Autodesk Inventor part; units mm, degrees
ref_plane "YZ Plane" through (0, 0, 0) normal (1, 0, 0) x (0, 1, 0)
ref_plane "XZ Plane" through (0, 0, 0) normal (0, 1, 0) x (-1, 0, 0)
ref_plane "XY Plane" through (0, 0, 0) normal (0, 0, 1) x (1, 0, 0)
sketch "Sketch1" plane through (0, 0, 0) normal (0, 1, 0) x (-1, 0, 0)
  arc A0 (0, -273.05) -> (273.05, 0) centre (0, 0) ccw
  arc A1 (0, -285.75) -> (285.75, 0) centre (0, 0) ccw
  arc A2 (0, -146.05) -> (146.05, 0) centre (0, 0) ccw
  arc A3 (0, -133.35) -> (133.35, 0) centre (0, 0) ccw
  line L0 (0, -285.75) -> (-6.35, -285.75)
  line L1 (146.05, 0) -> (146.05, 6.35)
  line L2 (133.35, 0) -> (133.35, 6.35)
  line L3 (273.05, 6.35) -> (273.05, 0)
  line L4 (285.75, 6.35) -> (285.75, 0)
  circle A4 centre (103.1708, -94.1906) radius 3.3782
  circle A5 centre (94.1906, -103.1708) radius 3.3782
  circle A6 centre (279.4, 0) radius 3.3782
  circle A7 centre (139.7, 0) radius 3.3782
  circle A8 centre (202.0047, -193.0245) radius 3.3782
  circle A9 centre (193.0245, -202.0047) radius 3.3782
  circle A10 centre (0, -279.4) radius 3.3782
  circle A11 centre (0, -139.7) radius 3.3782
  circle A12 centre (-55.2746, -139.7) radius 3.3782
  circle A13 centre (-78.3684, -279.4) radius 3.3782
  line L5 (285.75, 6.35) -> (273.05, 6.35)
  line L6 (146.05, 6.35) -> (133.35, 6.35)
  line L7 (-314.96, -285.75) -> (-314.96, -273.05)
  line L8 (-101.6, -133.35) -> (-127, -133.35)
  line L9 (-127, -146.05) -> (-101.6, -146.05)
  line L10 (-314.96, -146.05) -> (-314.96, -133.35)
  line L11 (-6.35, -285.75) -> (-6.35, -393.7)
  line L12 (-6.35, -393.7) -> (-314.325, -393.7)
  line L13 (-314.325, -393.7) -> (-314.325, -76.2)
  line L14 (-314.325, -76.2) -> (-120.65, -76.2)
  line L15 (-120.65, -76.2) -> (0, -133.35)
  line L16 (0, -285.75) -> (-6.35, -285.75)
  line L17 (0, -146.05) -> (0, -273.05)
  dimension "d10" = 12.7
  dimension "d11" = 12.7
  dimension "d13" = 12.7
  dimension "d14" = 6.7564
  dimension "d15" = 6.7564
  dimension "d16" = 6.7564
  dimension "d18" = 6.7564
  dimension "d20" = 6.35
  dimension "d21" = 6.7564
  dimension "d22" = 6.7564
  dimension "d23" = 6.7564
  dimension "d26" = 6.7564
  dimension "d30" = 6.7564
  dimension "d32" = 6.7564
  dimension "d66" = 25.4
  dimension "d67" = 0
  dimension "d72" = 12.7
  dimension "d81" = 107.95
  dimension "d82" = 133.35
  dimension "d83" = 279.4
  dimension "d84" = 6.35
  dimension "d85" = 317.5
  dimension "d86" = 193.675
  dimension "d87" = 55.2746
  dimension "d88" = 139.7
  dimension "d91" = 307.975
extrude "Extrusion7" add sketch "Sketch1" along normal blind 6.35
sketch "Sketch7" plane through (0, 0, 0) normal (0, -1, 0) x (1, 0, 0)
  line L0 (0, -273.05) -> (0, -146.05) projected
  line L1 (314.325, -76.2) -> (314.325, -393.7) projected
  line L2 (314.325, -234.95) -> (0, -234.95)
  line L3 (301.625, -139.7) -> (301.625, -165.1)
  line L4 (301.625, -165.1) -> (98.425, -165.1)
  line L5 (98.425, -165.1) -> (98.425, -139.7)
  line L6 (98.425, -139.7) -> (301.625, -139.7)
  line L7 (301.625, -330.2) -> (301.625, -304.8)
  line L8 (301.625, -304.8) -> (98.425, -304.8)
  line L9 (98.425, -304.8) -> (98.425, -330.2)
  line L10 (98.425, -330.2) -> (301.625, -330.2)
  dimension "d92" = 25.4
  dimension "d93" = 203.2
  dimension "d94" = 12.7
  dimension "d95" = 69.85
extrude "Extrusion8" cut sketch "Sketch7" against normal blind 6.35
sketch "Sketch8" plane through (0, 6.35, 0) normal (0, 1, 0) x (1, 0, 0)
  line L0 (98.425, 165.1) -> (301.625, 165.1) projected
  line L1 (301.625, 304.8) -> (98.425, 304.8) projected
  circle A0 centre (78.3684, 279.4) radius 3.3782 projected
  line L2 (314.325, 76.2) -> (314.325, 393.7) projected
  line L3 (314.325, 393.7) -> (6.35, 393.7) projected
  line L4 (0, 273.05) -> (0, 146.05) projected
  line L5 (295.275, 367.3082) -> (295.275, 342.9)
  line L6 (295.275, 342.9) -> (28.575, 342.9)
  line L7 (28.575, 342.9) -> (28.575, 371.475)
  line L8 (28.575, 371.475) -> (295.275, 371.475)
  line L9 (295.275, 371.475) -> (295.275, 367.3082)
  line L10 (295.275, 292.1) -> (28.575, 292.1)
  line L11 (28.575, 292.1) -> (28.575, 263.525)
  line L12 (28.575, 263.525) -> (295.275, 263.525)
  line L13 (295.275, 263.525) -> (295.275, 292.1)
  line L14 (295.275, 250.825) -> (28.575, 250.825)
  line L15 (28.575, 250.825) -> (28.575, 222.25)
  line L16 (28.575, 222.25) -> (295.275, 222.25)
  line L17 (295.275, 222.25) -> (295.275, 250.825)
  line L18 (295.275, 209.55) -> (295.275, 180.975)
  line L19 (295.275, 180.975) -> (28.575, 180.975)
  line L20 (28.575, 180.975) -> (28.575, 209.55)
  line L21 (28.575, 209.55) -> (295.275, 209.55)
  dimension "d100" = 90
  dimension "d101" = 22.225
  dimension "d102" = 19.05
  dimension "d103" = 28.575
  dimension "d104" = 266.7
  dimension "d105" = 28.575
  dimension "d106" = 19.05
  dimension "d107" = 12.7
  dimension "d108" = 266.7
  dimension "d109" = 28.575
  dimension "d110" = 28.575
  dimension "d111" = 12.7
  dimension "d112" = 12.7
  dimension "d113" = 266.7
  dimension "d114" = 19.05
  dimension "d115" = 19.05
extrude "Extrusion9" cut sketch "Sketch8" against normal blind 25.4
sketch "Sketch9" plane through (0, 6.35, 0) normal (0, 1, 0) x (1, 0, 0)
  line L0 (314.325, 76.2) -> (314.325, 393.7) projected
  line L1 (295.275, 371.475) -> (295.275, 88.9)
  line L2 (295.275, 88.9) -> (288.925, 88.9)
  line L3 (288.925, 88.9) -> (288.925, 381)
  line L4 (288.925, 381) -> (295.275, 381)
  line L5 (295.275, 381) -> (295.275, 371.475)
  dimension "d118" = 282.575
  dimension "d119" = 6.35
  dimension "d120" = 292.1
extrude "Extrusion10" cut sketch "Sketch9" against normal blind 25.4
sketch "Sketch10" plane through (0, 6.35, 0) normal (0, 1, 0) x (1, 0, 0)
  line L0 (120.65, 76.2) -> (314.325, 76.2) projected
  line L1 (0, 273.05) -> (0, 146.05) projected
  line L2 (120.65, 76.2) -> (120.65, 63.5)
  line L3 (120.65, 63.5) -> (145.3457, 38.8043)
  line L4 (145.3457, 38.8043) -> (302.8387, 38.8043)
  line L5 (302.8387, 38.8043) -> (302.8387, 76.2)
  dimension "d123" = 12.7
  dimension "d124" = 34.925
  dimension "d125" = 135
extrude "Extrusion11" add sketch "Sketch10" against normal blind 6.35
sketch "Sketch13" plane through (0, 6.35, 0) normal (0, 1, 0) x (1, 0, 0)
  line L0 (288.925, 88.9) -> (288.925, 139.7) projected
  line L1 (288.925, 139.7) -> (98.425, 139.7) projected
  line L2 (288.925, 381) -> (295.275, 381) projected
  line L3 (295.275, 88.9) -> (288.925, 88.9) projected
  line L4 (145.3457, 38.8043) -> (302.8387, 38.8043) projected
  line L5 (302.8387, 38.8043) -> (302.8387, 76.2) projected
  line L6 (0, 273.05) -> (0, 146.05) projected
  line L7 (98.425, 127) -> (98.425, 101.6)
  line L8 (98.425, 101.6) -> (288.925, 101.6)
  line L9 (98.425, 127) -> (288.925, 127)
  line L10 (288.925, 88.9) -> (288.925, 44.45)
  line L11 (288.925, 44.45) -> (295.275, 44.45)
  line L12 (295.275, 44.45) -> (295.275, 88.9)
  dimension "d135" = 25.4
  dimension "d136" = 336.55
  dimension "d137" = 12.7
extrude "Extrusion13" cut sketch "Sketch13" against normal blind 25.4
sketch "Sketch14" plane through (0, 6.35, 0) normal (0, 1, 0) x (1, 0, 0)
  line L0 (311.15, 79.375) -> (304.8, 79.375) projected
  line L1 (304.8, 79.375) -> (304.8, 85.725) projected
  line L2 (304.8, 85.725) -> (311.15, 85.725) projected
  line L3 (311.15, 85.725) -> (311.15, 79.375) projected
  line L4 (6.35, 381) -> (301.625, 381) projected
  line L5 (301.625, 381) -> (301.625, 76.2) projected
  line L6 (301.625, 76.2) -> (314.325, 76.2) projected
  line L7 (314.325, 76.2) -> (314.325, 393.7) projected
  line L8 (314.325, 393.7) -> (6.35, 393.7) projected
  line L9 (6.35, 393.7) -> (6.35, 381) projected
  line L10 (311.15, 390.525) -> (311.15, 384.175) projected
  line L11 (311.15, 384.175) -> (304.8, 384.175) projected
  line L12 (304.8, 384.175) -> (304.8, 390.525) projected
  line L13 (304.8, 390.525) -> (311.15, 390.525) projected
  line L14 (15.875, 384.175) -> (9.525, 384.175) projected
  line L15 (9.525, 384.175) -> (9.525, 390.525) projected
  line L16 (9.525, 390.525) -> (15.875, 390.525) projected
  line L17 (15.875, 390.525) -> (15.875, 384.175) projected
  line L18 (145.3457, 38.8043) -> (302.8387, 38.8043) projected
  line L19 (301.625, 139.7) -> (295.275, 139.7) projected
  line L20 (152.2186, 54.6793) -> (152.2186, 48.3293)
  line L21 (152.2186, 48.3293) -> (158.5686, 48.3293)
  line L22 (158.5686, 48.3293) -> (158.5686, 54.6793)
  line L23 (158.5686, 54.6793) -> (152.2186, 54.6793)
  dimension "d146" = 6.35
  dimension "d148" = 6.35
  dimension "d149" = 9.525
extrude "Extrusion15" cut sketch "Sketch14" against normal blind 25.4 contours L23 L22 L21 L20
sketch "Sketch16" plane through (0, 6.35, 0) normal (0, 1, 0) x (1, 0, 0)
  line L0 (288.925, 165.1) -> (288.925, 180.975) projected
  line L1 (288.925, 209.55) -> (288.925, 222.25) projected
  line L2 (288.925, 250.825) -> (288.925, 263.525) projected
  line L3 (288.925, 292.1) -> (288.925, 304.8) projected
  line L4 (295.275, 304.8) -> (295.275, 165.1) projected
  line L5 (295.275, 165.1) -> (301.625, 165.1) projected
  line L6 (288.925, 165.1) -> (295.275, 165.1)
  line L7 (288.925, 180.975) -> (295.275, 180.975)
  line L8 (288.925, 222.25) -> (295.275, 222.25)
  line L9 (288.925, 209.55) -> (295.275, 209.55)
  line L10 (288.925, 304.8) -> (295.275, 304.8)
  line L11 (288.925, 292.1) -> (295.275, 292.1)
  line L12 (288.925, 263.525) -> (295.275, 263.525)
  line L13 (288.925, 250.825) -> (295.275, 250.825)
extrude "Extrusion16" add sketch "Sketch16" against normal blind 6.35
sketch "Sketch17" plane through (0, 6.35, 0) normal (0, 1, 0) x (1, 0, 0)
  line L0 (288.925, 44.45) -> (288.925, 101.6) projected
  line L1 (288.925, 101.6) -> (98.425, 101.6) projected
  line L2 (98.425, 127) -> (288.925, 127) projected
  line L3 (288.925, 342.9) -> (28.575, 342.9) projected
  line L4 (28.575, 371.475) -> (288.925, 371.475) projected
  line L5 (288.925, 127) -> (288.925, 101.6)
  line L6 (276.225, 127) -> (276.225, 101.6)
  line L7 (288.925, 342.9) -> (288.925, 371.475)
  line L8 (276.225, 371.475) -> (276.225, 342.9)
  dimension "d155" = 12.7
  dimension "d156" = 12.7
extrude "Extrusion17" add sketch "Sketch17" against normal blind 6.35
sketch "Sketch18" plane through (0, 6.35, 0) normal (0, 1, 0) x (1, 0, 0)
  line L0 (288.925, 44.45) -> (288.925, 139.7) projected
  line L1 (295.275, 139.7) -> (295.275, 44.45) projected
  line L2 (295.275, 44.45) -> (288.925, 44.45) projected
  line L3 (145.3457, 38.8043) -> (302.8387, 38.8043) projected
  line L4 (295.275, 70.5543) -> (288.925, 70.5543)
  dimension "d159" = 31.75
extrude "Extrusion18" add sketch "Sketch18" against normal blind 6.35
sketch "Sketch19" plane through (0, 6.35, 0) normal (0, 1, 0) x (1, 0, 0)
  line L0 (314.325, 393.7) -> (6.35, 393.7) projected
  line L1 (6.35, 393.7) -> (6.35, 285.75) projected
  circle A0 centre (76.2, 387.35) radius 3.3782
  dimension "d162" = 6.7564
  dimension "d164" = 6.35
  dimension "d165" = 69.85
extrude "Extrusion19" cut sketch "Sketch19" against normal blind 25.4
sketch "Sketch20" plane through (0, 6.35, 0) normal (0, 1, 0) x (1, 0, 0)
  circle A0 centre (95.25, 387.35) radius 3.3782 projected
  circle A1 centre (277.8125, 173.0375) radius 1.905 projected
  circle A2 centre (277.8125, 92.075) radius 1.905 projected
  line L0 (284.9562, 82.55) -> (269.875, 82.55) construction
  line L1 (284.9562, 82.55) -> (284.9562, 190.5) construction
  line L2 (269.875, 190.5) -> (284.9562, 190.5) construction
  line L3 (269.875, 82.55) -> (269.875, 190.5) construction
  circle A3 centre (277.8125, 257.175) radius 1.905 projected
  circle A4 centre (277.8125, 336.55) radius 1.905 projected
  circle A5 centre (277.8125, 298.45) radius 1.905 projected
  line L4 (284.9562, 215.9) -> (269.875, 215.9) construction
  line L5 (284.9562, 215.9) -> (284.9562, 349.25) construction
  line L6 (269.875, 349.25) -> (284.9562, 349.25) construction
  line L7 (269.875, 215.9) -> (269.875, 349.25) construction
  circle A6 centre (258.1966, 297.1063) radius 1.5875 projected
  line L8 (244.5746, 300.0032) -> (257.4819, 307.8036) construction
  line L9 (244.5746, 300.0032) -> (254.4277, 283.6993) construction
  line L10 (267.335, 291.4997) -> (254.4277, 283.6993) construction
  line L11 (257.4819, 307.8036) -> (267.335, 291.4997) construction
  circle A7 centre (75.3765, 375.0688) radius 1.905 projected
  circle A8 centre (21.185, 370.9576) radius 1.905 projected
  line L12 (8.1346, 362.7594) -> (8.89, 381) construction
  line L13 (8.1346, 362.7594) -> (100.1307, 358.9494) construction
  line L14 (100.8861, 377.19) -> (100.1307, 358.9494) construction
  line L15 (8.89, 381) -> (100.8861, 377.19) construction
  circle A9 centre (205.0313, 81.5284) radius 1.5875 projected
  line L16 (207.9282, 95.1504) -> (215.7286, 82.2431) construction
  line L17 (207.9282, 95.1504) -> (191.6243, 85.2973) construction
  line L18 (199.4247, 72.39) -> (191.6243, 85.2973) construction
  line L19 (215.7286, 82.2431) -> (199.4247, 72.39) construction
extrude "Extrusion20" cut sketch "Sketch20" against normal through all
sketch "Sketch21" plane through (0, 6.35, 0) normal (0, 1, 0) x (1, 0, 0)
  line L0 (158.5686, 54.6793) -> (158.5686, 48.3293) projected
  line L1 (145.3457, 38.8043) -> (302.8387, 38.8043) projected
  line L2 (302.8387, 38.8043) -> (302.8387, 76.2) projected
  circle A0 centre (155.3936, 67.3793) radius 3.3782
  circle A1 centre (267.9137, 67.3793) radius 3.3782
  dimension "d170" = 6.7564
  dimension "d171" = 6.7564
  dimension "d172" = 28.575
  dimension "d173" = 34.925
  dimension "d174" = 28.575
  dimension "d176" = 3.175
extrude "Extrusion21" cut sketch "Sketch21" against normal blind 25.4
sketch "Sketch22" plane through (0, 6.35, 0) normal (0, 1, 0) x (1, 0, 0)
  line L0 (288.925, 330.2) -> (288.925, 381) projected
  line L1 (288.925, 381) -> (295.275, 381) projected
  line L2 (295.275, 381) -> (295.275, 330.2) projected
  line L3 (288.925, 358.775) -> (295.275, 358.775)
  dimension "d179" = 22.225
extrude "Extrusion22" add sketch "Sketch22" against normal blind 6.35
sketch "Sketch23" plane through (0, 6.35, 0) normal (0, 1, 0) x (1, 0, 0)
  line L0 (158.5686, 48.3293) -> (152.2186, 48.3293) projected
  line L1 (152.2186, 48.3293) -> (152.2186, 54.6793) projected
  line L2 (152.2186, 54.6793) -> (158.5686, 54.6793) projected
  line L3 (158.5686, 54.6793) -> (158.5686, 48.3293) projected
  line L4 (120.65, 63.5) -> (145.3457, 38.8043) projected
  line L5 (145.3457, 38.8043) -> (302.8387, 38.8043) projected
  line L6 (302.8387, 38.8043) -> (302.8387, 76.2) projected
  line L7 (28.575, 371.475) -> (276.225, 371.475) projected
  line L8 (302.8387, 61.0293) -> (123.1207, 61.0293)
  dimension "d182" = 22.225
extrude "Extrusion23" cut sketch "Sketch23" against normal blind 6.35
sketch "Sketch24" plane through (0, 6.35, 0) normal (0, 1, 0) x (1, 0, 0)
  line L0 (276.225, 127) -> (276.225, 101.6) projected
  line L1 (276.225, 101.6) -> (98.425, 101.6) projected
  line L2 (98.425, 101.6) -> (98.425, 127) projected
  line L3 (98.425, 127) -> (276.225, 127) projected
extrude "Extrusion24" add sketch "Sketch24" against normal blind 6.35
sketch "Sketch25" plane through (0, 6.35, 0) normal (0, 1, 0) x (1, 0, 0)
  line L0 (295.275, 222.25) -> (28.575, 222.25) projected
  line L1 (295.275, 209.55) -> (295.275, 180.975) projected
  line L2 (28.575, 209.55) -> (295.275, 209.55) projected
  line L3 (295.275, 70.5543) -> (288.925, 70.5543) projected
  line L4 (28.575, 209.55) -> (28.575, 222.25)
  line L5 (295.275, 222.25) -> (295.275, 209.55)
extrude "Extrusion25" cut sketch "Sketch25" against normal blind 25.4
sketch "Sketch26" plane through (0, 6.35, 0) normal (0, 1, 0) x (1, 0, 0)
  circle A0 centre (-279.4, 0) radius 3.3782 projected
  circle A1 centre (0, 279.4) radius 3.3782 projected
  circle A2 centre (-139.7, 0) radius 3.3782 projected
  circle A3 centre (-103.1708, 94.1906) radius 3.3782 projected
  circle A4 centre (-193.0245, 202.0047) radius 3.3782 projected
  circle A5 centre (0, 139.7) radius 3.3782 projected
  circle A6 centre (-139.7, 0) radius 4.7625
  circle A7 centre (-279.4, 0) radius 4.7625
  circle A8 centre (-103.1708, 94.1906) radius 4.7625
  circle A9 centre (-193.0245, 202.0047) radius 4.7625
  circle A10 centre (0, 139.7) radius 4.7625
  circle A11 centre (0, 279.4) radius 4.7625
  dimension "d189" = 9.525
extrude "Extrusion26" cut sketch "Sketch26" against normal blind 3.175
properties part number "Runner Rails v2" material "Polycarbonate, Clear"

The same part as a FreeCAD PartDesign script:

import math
import FreeCAD as App
import Part
import Sketcher
from FreeCAD import Vector
Q = App.Units.Quantity


def add_polygon(sketch, points):
    """Adds a closed chain of lines whose ends are joined by coincident constraints."""
    first, n = sketch.GeometryCount, len(points)
    for a, b in zip(points, points[1:] + points[:1]):
        sketch.addGeometry(Part.LineSegment(App.Vector(*a, 0), App.Vector(*b, 0)), False)
    for i in range(n):
        sketch.addConstraint(Sketcher.Constraint("Coincident", first + i, 2, first + (i + 1) % n, 1))

doc = App.newDocument("Part")
body = doc.addObject("PartDesign::Body", "Body")

# Sketch on XZ plane
sketch1 = body.newObject("Sketcher::SketchObject", "Sketch")
sketch1.AttachmentSupport = (doc.getObject("XZ_Plane"), [""])
sketch1.MapMode = "FlatFace"
sketch1.addGeometry([
    Part.ArcOfCircle(Part.Circle(Vector(0, 0, 0), Vector(0, 0, 1), 273.05), math.radians(180), math.radians(270)),  # 0
    Part.LineSegment(Vector(0, -273.05, 0), Vector(0, -146.05, 0)),  # 1
    Part.ArcOfCircle(Part.Circle(Vector(0, 0, 0), Vector(0, 0, 1), 146.05), math.radians(180), math.radians(270)),  # 2
    Part.LineSegment(Vector(-146.05, 0, 0), Vector(-146.05, 6.35, 0)),  # 3
    Part.LineSegment(Vector(-146.05, 6.35, 0), Vector(-133.35, 6.35, 0)),  # 4
    Part.LineSegment(Vector(-133.35, 6.35, 0), Vector(-133.35, 0, 0)),  # 5
    Part.ArcOfCircle(Part.Circle(Vector(0, 0, 0), Vector(0, 0, 1), 133.35), math.radians(180), math.radians(270)),  # 6
    Part.LineSegment(Vector(0, -133.35, 0), Vector(120.65, -76.2, 0)),  # 7
    Part.LineSegment(Vector(120.65, -76.2, 0), Vector(314.325, -76.2, 0)),  # 8
    Part.LineSegment(Vector(314.325, -76.2, 0), Vector(314.325, -393.7, 0)),  # 9
    Part.LineSegment(Vector(314.325, -393.7, 0), Vector(6.35, -393.7, 0)),  # 10
    Part.LineSegment(Vector(6.35, -393.7, 0), Vector(6.35, -285.75, 0)),  # 11
    Part.LineSegment(Vector(6.35, -285.75, 0), Vector(0, -285.75, 0)),  # 12
    Part.ArcOfCircle(Part.Circle(Vector(0, 0, 0), Vector(0, 0, 1), 285.75), math.radians(180), math.radians(270)),  # 13
    Part.LineSegment(Vector(-285.75, 0, 0), Vector(-285.75, 6.35, 0)),  # 14
    Part.LineSegment(Vector(-285.75, 6.35, 0), Vector(-273.05, 6.35, 0)),  # 15
    Part.LineSegment(Vector(-273.05, 6.35, 0), Vector(-273.05, 0, 0)),  # 16
    Part.Circle(Vector(78.3684, -279.4, 0), Vector(0, 0, 1), 3.3782),  # 17
    Part.Circle(Vector(0, -279.4, 0), Vector(0, 0, 1), 3.3782),  # 18
    Part.Circle(Vector(-193.0245, -202.0047, 0), Vector(0, 0, 1), 3.3782),  # 19
    Part.Circle(Vector(55.2746, -139.7, 0), Vector(0, 0, 1), 3.3782),  # 20
    Part.Circle(Vector(0, -139.7, 0), Vector(0, 0, 1), 3.3782),  # 21
    Part.Circle(Vector(-94.1906, -103.1708, 0), Vector(0, 0, 1), 3.3782),  # 22
    Part.Circle(Vector(-103.1708, -94.1906, 0), Vector(0, 0, 1), 3.3782),  # 23
    Part.Circle(Vector(-202.0047, -193.0245, 0), Vector(0, 0, 1), 3.3782),  # 24
    Part.Circle(Vector(-139.7, 0, 0), Vector(0, 0, 1), 3.3782),  # 25
    Part.Circle(Vector(-279.4, 0, 0), Vector(0, 0, 1), 3.3782),  # 26
], False)
sketch1.addConstraint([
    Sketcher.Constraint("Coincident", 0, 2, 1, 1),
    Sketcher.Constraint("Coincident", 1, 2, 2, 2),
    Sketcher.Constraint("Tangent", 2, 1, 3, 1),
    Sketcher.Constraint("Coincident", 3, 2, 4, 1),
    Sketcher.Constraint("Coincident", 4, 2, 5, 1),
    Sketcher.Constraint("Tangent", 5, 2, 6, 1),
    Sketcher.Constraint("Coincident", 6, 2, 7, 1),
    Sketcher.Constraint("Coincident", 7, 2, 8, 1),
    Sketcher.Constraint("Coincident", 8, 2, 9, 1),
    Sketcher.Constraint("Coincident", 9, 2, 10, 1),
    Sketcher.Constraint("Coincident", 10, 2, 11, 1),
    Sketcher.Constraint("Coincident", 11, 2, 12, 1),
    Sketcher.Constraint("Tangent", 12, 2, 13, 2),
    Sketcher.Constraint("Tangent", 13, 1, 14, 1),
    Sketcher.Constraint("Coincident", 14, 2, 15, 1),
    Sketcher.Constraint("Coincident", 15, 2, 16, 1),
    Sketcher.Constraint("Tangent", 16, 2, 0, 1),
    Sketcher.Constraint("Vertical", 1),
    Sketcher.Constraint("Vertical", 3),
    Sketcher.Constraint("Horizontal", 4),
    Sketcher.Constraint("Vertical", 5),
    Sketcher.Constraint("Horizontal", 8),
    Sketcher.Constraint("Vertical", 9),
    Sketcher.Constraint("Horizontal", 10),
    Sketcher.Constraint("Vertical", 11),
    Sketcher.Constraint("Horizontal", 12),
    Sketcher.Constraint("Vertical", 14),
    Sketcher.Constraint("Horizontal", 15),
    Sketcher.Constraint("Vertical", 16),
    Sketcher.Constraint("Coincident", 0, 3, -1, 1),
    Sketcher.Constraint("Coincident", 2, 3, -1, 1),
    Sketcher.Constraint("Coincident", 6, 3, -1, 1),
    Sketcher.Constraint("Coincident", 13, 3, -1, 1),
    Sketcher.Constraint("Equal", 17, 18),
    Sketcher.Constraint("Equal", 18, 19),
    Sketcher.Constraint("Equal", 19, 20),
    Sketcher.Constraint("Equal", 20, 21),
    Sketcher.Constraint("Equal", 21, 22),
    Sketcher.Constraint("Equal", 22, 23),
    Sketcher.Constraint("Equal", 23, 24),
    Sketcher.Constraint("Equal", 24, 25),
    Sketcher.Constraint("Equal", 25, 26),
    Sketcher.Constraint("PointOnObject", 18, 3, -2),
    Sketcher.Constraint("PointOnObject", 21, 3, -2),
    Sketcher.Constraint("PointOnObject", 25, 3, -1),
    Sketcher.Constraint("PointOnObject", 26, 3, -1),
    Sketcher.Constraint("PointOnObject", 0, 2, -2),
    Sketcher.Constraint("PointOnObject", 6, 2, -2),
    Sketcher.Constraint("Horizontal", 17, 3, 18, 3),
    Sketcher.Constraint("Horizontal", 20, 3, 21, 3),
    Sketcher.Constraint("Horizontal", 4, 2, 14, 2),
    Sketcher.Constraint("Equal", 4, 15),
    Sketcher.Constraint("Equal", 12, 3),
    Sketcher.Constraint("Radius", 6, Q("5.25 in")),
    Sketcher.Constraint("Diameter", 17, Q("0.266 in")),
    Sketcher.Constraint("DistanceX", 4, 1, 4, 2, Q("0.5 in")),
    Sketcher.Constraint("DistanceY", 9, 2, 9, 1, Q("12.5 in")),
    Sketcher.Constraint("DistanceY", 17, 3, -1, 1, Q("11 in")),
    Sketcher.Constraint("DistanceX", 26, 3, -1, 1, Q("11 in")),
    Sketcher.Constraint("DistanceX", 12, 2, 12, 1, Q("0.25 in")),
    Sketcher.Constraint("DistanceY", 11, 1, 11, 2, Q("4.25 in")),
    Sketcher.Constraint("DistanceY", 20, 3, -1, 1, Q("5.5 in")),
    Sketcher.Constraint("DistanceX", 25, 3, -1, 1, Q("5.5 in")),
    Sketcher.Constraint("DistanceY", 11, 2, 1, 2, Q("5.5 in")),
    Sketcher.Constraint("DistanceX", 8, 1, 8, 2, Q("7.625 in")),
    Sketcher.Constraint("DistanceX", 10, 2, 10, 1, Q("12.125 in")),
    Sketcher.Constraint("DistanceX", -1, 1, 20, 3, Q("55.2746 mm")),
    Sketcher.Constraint("DistanceX", 19, 3, -1, 1, Q("7.5994 in")),
    Sketcher.Constraint("DistanceX", 22, 3, -1, 1, Q("3.7083 in")),
    Sketcher.Constraint("DistanceY", 23, 3, -1, 1, Q("3.7083 in")),
    Sketcher.Constraint("DistanceY", 24, 3, -1, 1, Q("7.5994 in")),
    Sketcher.Constraint("DistanceX", 20, 3, 17, 3, Q("0.9092 in")),
    Sketcher.Constraint("DistanceX", 24, 3, 23, 3, Q("3.8911 in")),
    Sketcher.Constraint("DistanceY", 19, 3, -1, 1, Q("202.0047 mm")),
    Sketcher.Constraint("DistanceY", 22, 3, -1, 1, Q("103.1708 mm")),
    Sketcher.Constraint("DistanceX", 23, 3, -1, 1, Q("103.1708 mm")),
])
pad1 = body.newObject("PartDesign::Pad", "Pad")
pad1.Profile = sketch1
pad1.Length = Q("0.25 in")
pad1.Reversed = True

# Sketch on XZ plane
sketch2 = body.newObject("Sketcher::SketchObject", "Sketch001")
sketch2.AttachmentSupport = (doc.getObject("XZ_Plane"), [""])
sketch2.MapMode = "FlatFace"
add_polygon(sketch2, [(301.625, -165.1), (301.625, -139.7), (98.425, -139.7), (98.425, -165.1)])  # lines 0-3
add_polygon(sketch2, [(98.425, -330.2), (301.625, -330.2), (301.625, -304.8), (98.425, -304.8)])  # lines 4-7
sketch2.addConstraint([
    Sketcher.Constraint("Vertical", 0),
    Sketcher.Constraint("Horizontal", 1),
    Sketcher.Constraint("Vertical", 2),
    Sketcher.Constraint("Horizontal", 3),
    Sketcher.Constraint("Horizontal", 4),
    Sketcher.Constraint("Vertical", 5),
    Sketcher.Constraint("Horizontal", 6),
    Sketcher.Constraint("Vertical", 7),
    Sketcher.Constraint("Vertical", 3, 2, 4, 2),
    Sketcher.Constraint("Vertical", 2, 2, 6, 2),
    Sketcher.Constraint("Equal", 2, 5),
    Sketcher.Constraint("DistanceX", 1, 2, 1, 1, Q("8 in")),
    Sketcher.Constraint("DistanceY", 0, 1, 0, 2, Q("1 in")),
    Sketcher.Constraint("DistanceY", 4, 2, -1, 1, Q("13 in")),
    Sketcher.Constraint("DistanceY", 0, 2, -1, 1, Q("5.5 in")),
    Sketcher.Constraint("DistanceX", -1, 1, 0, 2, Q("11.875 in")),
])
pocket1 = body.newObject("PartDesign::Pocket", "Pocket")
pocket1.Profile = sketch2
pocket1.Length = Q("0.25 in")

# Sketch on XZ plane
sketch3 = body.newObject("Sketcher::SketchObject", "Sketch002")
sketch3.AttachmentSupport = (doc.getObject("XZ_Plane"), [""])
sketch3.MapMode = "FlatFace"
sketch3.AttachmentOffset = App.Placement(Vector(0, 0, -0.25 * 25.4), App.Rotation())
add_polygon(sketch3, [(295.275, -342.9), (295.275, -371.475), (28.575, -371.475), (28.575, -342.9)])  # lines 0-3
add_polygon(sketch3, [(295.275, -263.525), (295.275, -292.1), (28.575, -292.1), (28.575, -263.525)])  # lines 4-7
sketch3.addGeometry(Part.Circle(Vector(78.3684, -279.4, 0), Vector(0, 0, 1), 3.3782), False)  # 8
add_polygon(sketch3, [(295.275, -222.25), (295.275, -250.825), (28.575, -250.825), (28.575, -222.25)])  # lines 9-12
add_polygon(sketch3, [(295.275, -180.975), (295.275, -209.55), (28.575, -209.55), (28.575, -180.975)])  # lines 13-16
sketch3.addConstraint([
    Sketcher.Constraint("Vertical", 0),
    Sketcher.Constraint("Horizontal", 1),
    Sketcher.Constraint("Vertical", 2),
    Sketcher.Constraint("Horizontal", 3),
    Sketcher.Constraint("Vertical", 4),
    Sketcher.Constraint("Horizontal", 5),
    Sketcher.Constraint("Vertical", 6),
    Sketcher.Constraint("Horizontal", 7),
    Sketcher.Constraint("Vertical", 9),
    Sketcher.Constraint("Horizontal", 10),
    Sketcher.Constraint("Vertical", 11),
    Sketcher.Constraint("Horizontal", 12),
    Sketcher.Constraint("Vertical", 13),
    Sketcher.Constraint("Horizontal", 14),
    Sketcher.Constraint("Vertical", 15),
    Sketcher.Constraint("Horizontal", 16),
    Sketcher.Constraint("Vertical", 3, 2, 4, 2),
    Sketcher.Constraint("Vertical", 2, 2, 5, 2),
    Sketcher.Constraint("Vertical", 7, 2, 9, 2),
    Sketcher.Constraint("Vertical", 6, 2, 10, 2),
    Sketcher.Constraint("Vertical", 12, 2, 13, 2),
    Sketcher.Constraint("Vertical", 11, 2, 14, 2),
    Sketcher.Constraint("Equal", 2, 4),
    Sketcher.Constraint("Equal", 6, 9),
    Sketcher.Constraint("Equal", 11, 13),
    Sketcher.Constraint("DistanceX", 1, 2, 1, 1, Q("10.5 in")),
    Sketcher.Constraint("DistanceY", 4, 2, 8, 3, Q("0.5 in")),
    Sketcher.Constraint("DistanceY", 7, 2, 9, 2, Q("0.5 in")),
    Sketcher.Constraint("DistanceY", 12, 2, 13, 2, Q("0.5 in")),
    Sketcher.Constraint("DistanceY", 0, 2, 0, 1, Q("1.125 in")),
    Sketcher.Constraint("Diameter", 8, Q("0.266 in")),
    Sketcher.Constraint("DistanceY", 8, 3, -1, 1, Q("11 in")),
    Sketcher.Constraint("DistanceX", -1, 1, 1, 2, Q("1.125 in")),
    Sketcher.Constraint("DistanceY", 3, 2, 4, 2, Q("2 in")),
    Sketcher.Constraint("DistanceX", -1, 1, 8, 3, Q("78.3684 mm")),
])
pocket2 = body.newObject("PartDesign::Pocket", "Pocket001")
pocket2.Profile = sketch3
pocket2.Length = Q("1 in")
pocket2.Reversed = True

# Sketch on XZ plane
sketch4 = body.newObject("Sketcher::SketchObject", "Sketch003")
sketch4.AttachmentSupport = (doc.getObject("XZ_Plane"), [""])
sketch4.MapMode = "FlatFace"
sketch4.AttachmentOffset = App.Placement(Vector(0, 0, -0.25 * 25.4), App.Rotation())
add_polygon(sketch4, [(295.275, -88.9), (295.275, -381), (288.925, -381), (288.925, -88.9)])  # lines 0-3
sketch4.addConstraint([
    Sketcher.Constraint("Vertical", 0),
    Sketcher.Constraint("Horizontal", 1),
    Sketcher.Constraint("Vertical", 2),
    Sketcher.Constraint("Horizontal", 3),
    Sketcher.Constraint("DistanceY", 0, 2, 0, 1, Q("11.5 in")),
    Sketcher.Constraint("DistanceX", 1, 2, 1, 1, Q("0.25 in")),
    Sketcher.Constraint("DistanceY", 0, 2, -1, 1, Q("15 in")),
    Sketcher.Constraint("DistanceX", -1, 1, 0, 2, Q("11.625 in")),
])
pocket3 = body.newObject("PartDesign::Pocket", "Pocket002")
pocket3.Profile = sketch4
pocket3.Length = Q("1 in")
pocket3.Reversed = True

# Sketch on XZ plane
sketch5 = body.newObject("Sketcher::SketchObject", "Sketch004")
sketch5.AttachmentSupport = (doc.getObject("XZ_Plane"), [""])
sketch5.MapMode = "FlatFace"
sketch5.AttachmentOffset = App.Placement(Vector(0, 0, -0.25 * 25.4), App.Rotation())
add_polygon(sketch5, [(302.8387, -76.2), (120.65, -76.2), (120.65, -63.5), (145.3457, -38.8043), (302.8387, -38.8043)])  # lines 0-4
sketch5.addConstraint([
    Sketcher.Constraint("Horizontal", 0),
    Sketcher.Constraint("Vertical", 1),
    Sketcher.Constraint("Horizontal", 3),
    Sketcher.Constraint("Vertical", 4),
    Sketcher.Constraint("DistanceY", 1, 1, 1, 2, Q("0.5 in")),
    Sketcher.Constraint("Distance", 2, Q("1.375 in")),
    Sketcher.Constraint("DistanceY", 0, 2, -1, 1, Q("3 in")),
    Sketcher.Constraint("Angle", 2, Q("45 deg")),
    Sketcher.Constraint("DistanceX", -1, 1, 0, 2, Q("4.75 in")),
    Sketcher.Constraint("DistanceX", 3, 1, 3, 2, Q("6.2005 in")),
])
pad2 = body.newObject("PartDesign::Pad", "Pad001")
pad2.Profile = sketch5
pad2.Length = Q("0.25 in")

# Sketch on XZ plane
sketch6 = body.newObject("Sketcher::SketchObject", "Sketch005")
sketch6.AttachmentSupport = (doc.getObject("XZ_Plane"), [""])
sketch6.MapMode = "FlatFace"
sketch6.AttachmentOffset = App.Placement(Vector(0, 0, -0.25 * 25.4), App.Rotation())
add_polygon(sketch6, [(98.425, -101.6), (288.925, -101.6), (288.925, -127), (98.425, -127)])  # lines 0-3
add_polygon(sketch6, [(295.275, -88.9), (288.925, -88.9), (288.925, -44.45), (295.275, -44.45)])  # lines 4-7
sketch6.addConstraint([
    Sketcher.Constraint("Horizontal", 0),
    Sketcher.Constraint("Vertical", 1),
    Sketcher.Constraint("Horizontal", 2),
    Sketcher.Constraint("Vertical", 3),
    Sketcher.Constraint("Horizontal", 4),
    Sketcher.Constraint("Vertical", 5),
    Sketcher.Constraint("Horizontal", 6),
    Sketcher.Constraint("Vertical", 7),
    Sketcher.Constraint("Vertical", 1, 2, 4, 2),
    Sketcher.Constraint("DistanceY", 1, 2, 1, 1, Q("1 in")),
    Sketcher.Constraint("DistanceY", 0, 2, 4, 2, Q("0.5 in")),
    Sketcher.Constraint("DistanceX", 0, 1, 0, 2, Q("7.5 in")),
    Sketcher.Constraint("DistanceY", 0, 2, -1, 1, Q("4 in")),
    Sketcher.Constraint("DistanceX", 4, 2, 4, 1, Q("0.25 in")),
    Sketcher.Constraint("DistanceY", 5, 1, 5, 2, Q("1.75 in")),
    Sketcher.Constraint("DistanceX", -1, 1, 0, 2, Q("11.375 in")),
])
pocket4 = body.newObject("PartDesign::Pocket", "Pocket003")
pocket4.Profile = sketch6
pocket4.Length = Q("1 in")
pocket4.Reversed = True

# Sketch on XZ plane
sketch7 = body.newObject("Sketcher::SketchObject", "Sketch006")
sketch7.AttachmentSupport = (doc.getObject("XZ_Plane"), [""])
sketch7.MapMode = "FlatFace"
sketch7.AttachmentOffset = App.Placement(Vector(0, 0, -0.25 * 25.4), App.Rotation())
add_polygon(sketch7, [(158.5686, -54.6793), (152.2186, -54.6793), (152.2186, -48.3293), (158.5686, -48.3293)])  # lines 0-3
sketch7.addConstraint([
    Sketcher.Constraint("Horizontal", 0),
    Sketcher.Constraint("Vertical", 1),
    Sketcher.Constraint("Horizontal", 2),
    Sketcher.Constraint("Vertical", 3),
    Sketcher.Constraint("Equal", 2, 1),
    Sketcher.Constraint("DistanceX", 0, 2, 0, 1, Q("0.25 in")),
    Sketcher.Constraint("DistanceX", -1, 1, 0, 2, Q("152.2186 mm")),
    Sketcher.Constraint("DistanceY", 0, 2, -1, 1, Q("54.6793 mm")),
])
pocket5 = body.newObject("PartDesign::Pocket", "Pocket004")
pocket5.Profile = sketch7
pocket5.Length = Q("1 in")
pocket5.Reversed = True

# Sketch on XZ plane
sketch8 = body.newObject("Sketcher::SketchObject", "Sketch007")
sketch8.AttachmentSupport = (doc.getObject("XZ_Plane"), [""])
sketch8.MapMode = "FlatFace"
sketch8.AttachmentOffset = App.Placement(Vector(0, 0, -0.25 * 25.4), App.Rotation())
add_polygon(sketch8, [(288.925, -292.1), (295.275, -292.1), (295.275, -304.8), (288.925, -304.8)])  # lines 0-3
add_polygon(sketch8, [(288.925, -250.825), (295.275, -250.825), (295.275, -263.525), (288.925, -263.525)])  # lines 4-7
add_polygon(sketch8, [(288.925, -209.55), (295.275, -209.55), (295.275, -222.25), (288.925, -222.25)])  # lines 8-11
add_polygon(sketch8, [(288.925, -180.975), (288.925, -165.1), (295.275, -165.1), (295.275, -180.975)])  # lines 12-15
sketch8.addConstraint([
    Sketcher.Constraint("Horizontal", 0),
    Sketcher.Constraint("Vertical", 1),
    Sketcher.Constraint("Horizontal", 2),
    Sketcher.Constraint("Vertical", 3),
    Sketcher.Constraint("Horizontal", 4),
    Sketcher.Constraint("Vertical", 5),
    Sketcher.Constraint("Horizontal", 6),
    Sketcher.Constraint("Vertical", 7),
    Sketcher.Constraint("Horizontal", 8),
    Sketcher.Constraint("Vertical", 9),
    Sketcher.Constraint("Horizontal", 10),
    Sketcher.Constraint("Vertical", 11),
    Sketcher.Constraint("Vertical", 12),
    Sketcher.Constraint("Horizontal", 13),
    Sketcher.Constraint("Vertical", 14),
    Sketcher.Constraint("Horizontal", 15),
    Sketcher.Constraint("Vertical", 1, 2, 4, 2),
    Sketcher.Constraint("Vertical", 3, 2, 6, 2),
    Sketcher.Constraint("Vertical", 5, 2, 8, 2),
    Sketcher.Constraint("Vertical", 7, 2, 10, 2),
    Sketcher.Constraint("Vertical", 11, 2, 12, 2),
    Sketcher.Constraint("Vertical", 9, 2, 13, 2),
    Sketcher.Constraint("Equal", 3, 5),
    Sketcher.Constraint("Equal", 7, 9),
    Sketcher.Constraint("DistanceY", 1, 2, 1, 1, Q("0.5 in")),
    Sketcher.Constraint("DistanceY", 1, 2, -1, 1, Q("12 in")),
    Sketcher.Constraint("DistanceX", 0, 1, 0, 2, Q("0.25 in")),
    Sketcher.Constraint("DistanceY", 12, 2, -1, 1, Q("6.5 in")),
    Sketcher.Constraint("DistanceY", 12, 1, 12, 2, Q("0.625 in")),
    Sketcher.Constraint("DistanceY", 8, 2, -1, 1, Q("8.25 in")),
    Sketcher.Constraint("DistanceX", -1, 1, 0, 2, Q("11.625 in")),
    Sketcher.Constraint("DistanceY", 4, 2, -1, 1, Q("9.875 in")),
])
pad3 = body.newObject("PartDesign::Pad", "Pad002")
pad3.Profile = sketch8
pad3.Length = Q("0.25 in")

# Sketch on XZ plane
sketch9 = body.newObject("Sketcher::SketchObject", "Sketch008")
sketch9.AttachmentSupport = (doc.getObject("XZ_Plane"), [""])
sketch9.MapMode = "FlatFace"
sketch9.AttachmentOffset = App.Placement(Vector(0, 0, -0.25 * 25.4), App.Rotation())
add_polygon(sketch9, [(276.225, -101.6), (288.925, -101.6), (288.925, -127), (276.225, -127)])  # lines 0-3
add_polygon(sketch9, [(276.225, -342.9), (288.925, -342.9), (288.925, -371.475), (276.225, -371.475)])  # lines 4-7
sketch9.addConstraint([
    Sketcher.Constraint("Horizontal", 0),
    Sketcher.Constraint("Vertical", 1),
    Sketcher.Constraint("Horizontal", 2),
    Sketcher.Constraint("Vertical", 3),
    Sketcher.Constraint("Horizontal", 4),
    Sketcher.Constraint("Vertical", 5),
    Sketcher.Constraint("Horizontal", 6),
    Sketcher.Constraint("Vertical", 7),
    Sketcher.Constraint("Vertical", 1, 2, 4, 2),
    Sketcher.Constraint("Vertical", 3, 2, 6, 2),
    Sketcher.Constraint("DistanceX", 0, 1, 0, 2, Q("0.5 in")),
    Sketcher.Constraint("DistanceY", 1, 2, 1, 1, Q("1 in")),
    Sketcher.Constraint("DistanceY", 0, 2, -1, 1, Q("4 in")),
    Sketcher.Constraint("DistanceY", 4, 2, -1, 1, Q("13.5 in")),
    Sketcher.Constraint("DistanceY", 5, 2, 5, 1, Q("1.125 in")),
    Sketcher.Constraint("DistanceX", -1, 1, 0, 2, Q("11.375 in")),
])
pad4 = body.newObject("PartDesign::Pad", "Pad003")
pad4.Profile = sketch9
pad4.Length = Q("0.25 in")

# Sketch on XZ plane
sketch10 = body.newObject("Sketcher::SketchObject", "Sketch009")
sketch10.AttachmentSupport = (doc.getObject("XZ_Plane"), [""])
sketch10.MapMode = "FlatFace"
sketch10.AttachmentOffset = App.Placement(Vector(0, 0, -0.25 * 25.4), App.Rotation())
add_polygon(sketch10, [(288.925, -70.5543), (288.925, -44.45), (295.275, -44.45), (295.275, -70.5543)])  # lines 0-3
sketch10.addConstraint([
    Sketcher.Constraint("Vertical", 0),
    Sketcher.Constraint("Horizontal", 1),
    Sketcher.Constraint("Vertical", 2),
    Sketcher.Constraint("Horizontal", 3),
    Sketcher.Constraint("DistanceX", 1, 1, 1, 2, Q("0.25 in")),
    Sketcher.Constraint("DistanceY", 0, 2, -1, 1, Q("1.75 in")),
    Sketcher.Constraint("DistanceX", -1, 1, 0, 2, Q("11.375 in")),
    Sketcher.Constraint("DistanceY", 0, 1, 0, 2, Q("26.1043 mm")),
])
pad5 = body.newObject("PartDesign::Pad", "Pad004")
pad5.Profile = sketch10
pad5.Length = Q("0.25 in")

# Sketch on XZ plane
sketch11 = body.newObject("Sketcher::SketchObject", "Sketch010")
sketch11.AttachmentSupport = (doc.getObject("XZ_Plane"), [""])
sketch11.MapMode = "FlatFace"
sketch11.AttachmentOffset = App.Placement(Vector(0, 0, -0.25 * 25.4), App.Rotation())
sketch11.addGeometry(Part.Circle(Vector(76.2, -387.35, 0), Vector(0, 0, 1), 3.3782), False)
sketch11.addConstraint([
    Sketcher.Constraint("Diameter", 0, Q("0.266 in")),
    Sketcher.Constraint("DistanceX", -1, 1, 0, 3, Q("3 in")),
    Sketcher.Constraint("DistanceY", 0, 3, -1, 1, Q("15.25 in")),
])
pocket6 = body.newObject("PartDesign::Pocket", "Pocket005")
pocket6.Profile = sketch11
pocket6.Length = Q("1 in")
pocket6.Reversed = True

# Sketch on XZ plane
sketch12 = body.newObject("Sketcher::SketchObject", "Sketch011")
sketch12.AttachmentSupport = (doc.getObject("XZ_Plane"), [""])
sketch12.MapMode = "FlatFace"
sketch12.AttachmentOffset = App.Placement(Vector(0, 0, -0.25 * 25.4), App.Rotation())
sketch12.addGeometry([
    Part.Circle(Vector(95.25, -387.35, 0), Vector(0, 0, 1), 3.3782),  # 0
    Part.Circle(Vector(277.8125, -173.0375, 0), Vector(0, 0, 1), 1.905),  # 1
    Part.Circle(Vector(277.8125, -92.075, 0), Vector(0, 0, 1), 1.905),  # 2
    Part.Circle(Vector(277.8125, -257.175, 0), Vector(0, 0, 1), 1.905),  # 3
    Part.Circle(Vector(277.8125, -336.55, 0), Vector(0, 0, 1), 1.905),  # 4
    Part.Circle(Vector(277.8125, -298.45, 0), Vector(0, 0, 1), 1.905),  # 5
    Part.Circle(Vector(258.1966, -297.1063, 0), Vector(0, 0, 1), 1.5875),  # 6
    Part.Circle(Vector(75.3765, -375.0688, 0), Vector(0, 0, 1), 1.905),  # 7
    Part.Circle(Vector(21.185, -370.9576, 0), Vector(0, 0, 1), 1.905),  # 8
    Part.Circle(Vector(205.0313, -81.5284, 0), Vector(0, 0, 1), 1.5875),  # 9
], False)
sketch12.addConstraint([
    Sketcher.Constraint("Equal", 1, 2),
    Sketcher.Constraint("Equal", 2, 3),
    Sketcher.Constraint("Equal", 3, 4),
    Sketcher.Constraint("Equal", 4, 5),
    Sketcher.Constraint("Equal", 5, 7),
    Sketcher.Constraint("Equal", 7, 8),
    Sketcher.Constraint("Equal", 6, 9),
    Sketcher.Constraint("Vertical", 1, 3, 2, 3),
    Sketcher.Constraint("Vertical", 2, 3, 3, 3),
    Sketcher.Constraint("Vertical", 3, 3, 4, 3),
    Sketcher.Constraint("Vertical", 4, 3, 5, 3),
    Sketcher.Constraint("Diameter", 1, Q("0.15 in")),
    Sketcher.Constraint("Diameter", 0, Q("0.266 in")),
    Sketcher.Constraint("Diameter", 6, Q("0.125 in")),
    Sketcher.Constraint("DistanceY", 0, 3, 4, 3, Q("2 in")),
    Sketcher.Constraint("DistanceY", 3, 3, 2, 3, Q("6.5 in")),
    Sketcher.Constraint("DistanceY", 4, 3, 5, 3, Q("1.5 in")),
    Sketcher.Constraint("DistanceX", -1, 1, 0, 3, Q("3.75 in")),
    Sketcher.Constraint("DistanceY", 0, 3, -1, 1, Q("15.25 in")),
    Sketcher.Constraint("DistanceX", -1, 1, 1, 3, Q("10.9375 in")),
    Sketcher.Constraint("DistanceY", 1, 3, -1, 1, Q("6.8125 in")),
    Sketcher.Constraint("DistanceY", 2, 3, -1, 1, Q("3.625 in")),
    Sketcher.Constraint("DistanceY", 6, 3, -1, 1, Q("11.6971 in")),
    Sketcher.Constraint("DistanceY", 7, 3, -1, 1, Q("14.7665 in")),
    Sketcher.Constraint("DistanceX", -1, 1, 9, 3, Q("8.0721 in")),
    Sketcher.Constraint("DistanceX", -1, 1, 6, 3, Q("258.1966 mm")),
    Sketcher.Constraint("DistanceX", -1, 1, 7, 3, Q("75.3765 mm")),
    Sketcher.Constraint("DistanceX", -1, 1, 8, 3, Q("21.185 mm")),
    Sketcher.Constraint("DistanceY", 8, 3, -1, 1, Q("370.9576 mm")),
    Sketcher.Constraint("DistanceY", 9, 3, -1, 1, Q("81.5284 mm")),
])
pocket7 = body.newObject("PartDesign::Pocket", "Pocket006")
pocket7.Profile = sketch12
pocket7.Type = "ThroughAll"
pocket7.Reversed = True

# Sketch on XZ plane
sketch13 = body.newObject("Sketcher::SketchObject", "Sketch012")
sketch13.AttachmentSupport = (doc.getObject("XZ_Plane"), [""])
sketch13.MapMode = "FlatFace"
sketch13.AttachmentOffset = App.Placement(Vector(0, 0, -0.25 * 25.4), App.Rotation())
sketch13.addGeometry([
    Part.Circle(Vector(155.3936, -67.3793, 0), Vector(0, 0, 1), 3.3782),
    Part.Circle(Vector(267.9137, -67.3793, 0), Vector(0, 0, 1), 3.3782),
], False)
sketch13.addConstraint([
    Sketcher.Constraint("Equal", 0, 1),
    Sketcher.Constraint("Horizontal", 0, 3, 1, 3),
    Sketcher.Constraint("Diameter", 0, Q("0.266 in")),
    Sketcher.Constraint("DistanceX", -1, 1, 0, 3, Q("155.3936 mm")),
    Sketcher.Constraint("DistanceY", 0, 3, -1, 1, Q("67.3793 mm")),
    Sketcher.Constraint("DistanceX", -1, 1, 1, 3, Q("267.9137 mm")),
])
pocket8 = body.newObject("PartDesign::Pocket", "Pocket007")
pocket8.Profile = sketch13
pocket8.Length = Q("1 in")
pocket8.Reversed = True

# Sketch on XZ plane
sketch14 = body.newObject("Sketcher::SketchObject", "Sketch013")
sketch14.AttachmentSupport = (doc.getObject("XZ_Plane"), [""])
sketch14.MapMode = "FlatFace"
sketch14.AttachmentOffset = App.Placement(Vector(0, 0, -0.25 * 25.4), App.Rotation())
add_polygon(sketch14, [(288.925, -381), (288.925, -358.775), (295.275, -358.775), (295.275, -381)])  # lines 0-3
sketch14.addConstraint([
    Sketcher.Constraint("Vertical", 0),
    Sketcher.Constraint("Horizontal", 1),
    Sketcher.Constraint("Vertical", 2),
    Sketcher.Constraint("Horizontal", 3),
    Sketcher.Constraint("DistanceY", 0, 1, 0, 2, Q("0.875 in")),
    Sketcher.Constraint("DistanceY", 2, 2, -1, 1, Q("15 in")),
    Sketcher.Constraint("DistanceX", 1, 1, 1, 2, Q("0.25 in")),
    Sketcher.Constraint("DistanceX", -1, 1, 0, 2, Q("11.375 in")),
])
pad6 = body.newObject("PartDesign::Pad", "Pad005")
pad6.Profile = sketch14
pad6.Length = Q("0.25 in")

# Sketch on XZ plane
sketch15 = body.newObject("Sketcher::SketchObject", "Sketch014")
sketch15.AttachmentSupport = (doc.getObject("XZ_Plane"), [""])
sketch15.MapMode = "FlatFace"
sketch15.AttachmentOffset = App.Placement(Vector(0, 0, -0.25 * 25.4), App.Rotation())
add_polygon(sketch15, [(302.8387, -61.0293), (123.1207, -61.0293), (145.3457, -38.8043), (302.8387, -38.8043)])  # lines 0-3
add_polygon(sketch15, [(158.5686, -54.6793), (158.5686, -48.3293), (152.2186, -48.3293), (152.2186, -54.6793)])  # lines 4-7
sketch15.addConstraint([
    Sketcher.Constraint("Horizontal", 0),
    Sketcher.Constraint("Horizontal", 2),
    Sketcher.Constraint("Vertical", 3),
    Sketcher.Constraint("Vertical", 4),
    Sketcher.Constraint("Horizontal", 5),
    Sketcher.Constraint("Vertical", 6),
    Sketcher.Constraint("Horizontal", 7),
    Sketcher.Constraint("Equal", 7, 4),
    Sketcher.Constraint("DistanceY", 3, 2, 3, 1, Q("0.875 in")),
    Sketcher.Constraint("Angle", 1, Q("45 deg")),
    Sketcher.Constraint("DistanceX", 5, 2, 5, 1, Q("0.25 in")),
    Sketcher.Constraint("DistanceY", 0, 2, 4, 2, Q("0.5 in")),
    Sketcher.Constraint("DistanceX", 0, 2, 0, 1, Q("7.0755 in")),
    Sketcher.Constraint("DistanceX", -1, 1, 0, 2, Q("123.1207 mm")),
    Sketcher.Constraint("DistanceY", 0, 2, -1, 1, Q("61.0293 mm")),
    Sketcher.Constraint("DistanceX", -1, 1, 4, 2, Q("158.5686 mm")),
])
pocket9 = body.newObject("PartDesign::Pocket", "Pocket008")
pocket9.Profile = sketch15
pocket9.Length = Q("0.25 in")
pocket9.Reversed = True

# Sketch on XZ plane
sketch16 = body.newObject("Sketcher::SketchObject", "Sketch015")
sketch16.AttachmentSupport = (doc.getObject("XZ_Plane"), [""])
sketch16.MapMode = "FlatFace"
sketch16.AttachmentOffset = App.Placement(Vector(0, 0, -0.25 * 25.4), App.Rotation())
add_polygon(sketch16, [(276.225, -101.6), (276.225, -127), (98.425, -127), (98.425, -101.6)])  # lines 0-3
sketch16.addConstraint([
    Sketcher.Constraint("Vertical", 0),
    Sketcher.Constraint("Horizontal", 1),
    Sketcher.Constraint("Vertical", 2),
    Sketcher.Constraint("Horizontal", 3),
    Sketcher.Constraint("DistanceX", 1, 2, 1, 1, Q("7 in")),
    Sketcher.Constraint("DistanceY", 0, 2, 0, 1, Q("1 in")),
    Sketcher.Constraint("DistanceY", 0, 2, -1, 1, Q("5 in")),
    Sketcher.Constraint("DistanceX", -1, 1, 0, 2, Q("10.875 in")),
])
pad7 = body.newObject("PartDesign::Pad", "Pad006")
pad7.Profile = sketch16
pad7.Length = Q("0.25 in")

# Sketch on XZ plane
sketch17 = body.newObject("Sketcher::SketchObject", "Sketch016")
sketch17.AttachmentSupport = (doc.getObject("XZ_Plane"), [""])
sketch17.MapMode = "FlatFace"
sketch17.AttachmentOffset = App.Placement(Vector(0, 0, -0.25 * 25.4), App.Rotation())
add_polygon(sketch17, [(295.275, -209.55), (295.275, -222.25), (28.575, -222.25), (28.575, -209.55)])  # lines 0-3
sketch17.addConstraint([
    Sketcher.Constraint("Vertical", 0),
    Sketcher.Constraint("Horizontal", 1),
    Sketcher.Constraint("Vertical", 2),
    Sketcher.Constraint("Horizontal", 3),
    Sketcher.Constraint("DistanceX", 1, 2, 1, 1, Q("10.5 in")),
    Sketcher.Constraint("DistanceY", 0, 2, 0, 1, Q("0.5 in")),
    Sketcher.Constraint("DistanceY", 0, 2, -1, 1, Q("8.75 in")),
    Sketcher.Constraint("DistanceX", -1, 1, 0, 2, Q("11.625 in")),
])
pocket10 = body.newObject("PartDesign::Pocket", "Pocket009")
pocket10.Profile = sketch17
pocket10.Length = Q("1 in")
pocket10.Reversed = True

# Sketch on XZ plane
sketch18 = body.newObject("Sketcher::SketchObject", "Sketch017")
sketch18.AttachmentSupport = (doc.getObject("XZ_Plane"), [""])
sketch18.MapMode = "FlatFace"
sketch18.AttachmentOffset = App.Placement(Vector(0, 0, -0.25 * 25.4), App.Rotation())
sketch18.addGeometry([
    Part.Circle(Vector(-139.7, 0, 0), Vector(0, 0, 1), 4.7625),  # 0
    Part.Circle(Vector(-139.7, 0, 0), Vector(0, 0, 1), 3.3782),  # 1
    Part.Circle(Vector(-279.4, 0, 0), Vector(0, 0, 1), 4.7625),  # 2
    Part.Circle(Vector(-279.4, 0, 0), Vector(0, 0, 1), 3.3782),  # 3
    Part.Circle(Vector(-103.1708, -94.1906, 0), Vector(0, 0, 1), 4.7625),  # 4
    Part.Circle(Vector(-103.1708, -94.1906, 0), Vector(0, 0, 1), 3.3782),  # 5
    Part.Circle(Vector(-193.0245, -202.0047, 0), Vector(0, 0, 1), 4.7625),  # 6
    Part.Circle(Vector(-193.0245, -202.0047, 0), Vector(0, 0, 1), 3.3782),  # 7
    Part.Circle(Vector(0, -139.7, 0), Vector(0, 0, 1), 4.7625),  # 8
    Part.Circle(Vector(0, -139.7, 0), Vector(0, 0, 1), 3.3782),  # 9
    Part.Circle(Vector(0, -279.4, 0), Vector(0, 0, 1), 4.7625),  # 10
    Part.Circle(Vector(0, -279.4, 0), Vector(0, 0, 1), 3.3782),  # 11
], False)
sketch18.addConstraint([
    Sketcher.Constraint("Coincident", 1, 3, 0, 3),
    Sketcher.Constraint("Coincident", 3, 3, 2, 3),
    Sketcher.Constraint("Coincident", 5, 3, 4, 3),
    Sketcher.Constraint("Coincident", 7, 3, 6, 3),
    Sketcher.Constraint("Coincident", 9, 3, 8, 3),
    Sketcher.Constraint("Coincident", 11, 3, 10, 3),
    Sketcher.Constraint("Equal", 0, 2),
    Sketcher.Constraint("Equal", 1, 3),
    Sketcher.Constraint("Equal", 2, 4),
    Sketcher.Constraint("Equal", 3, 5),
    Sketcher.Constraint("Equal", 4, 6),
    Sketcher.Constraint("Equal", 5, 7),
    Sketcher.Constraint("Equal", 6, 8),
    Sketcher.Constraint("Equal", 7, 9),
    Sketcher.Constraint("Equal", 8, 10),
    Sketcher.Constraint("Equal", 9, 11),
    Sketcher.Constraint("PointOnObject", 0, 3, -1),
    Sketcher.Constraint("PointOnObject", 2, 3, -1),
    Sketcher.Constraint("PointOnObject", 8, 3, -2),
    Sketcher.Constraint("PointOnObject", 10, 3, -2),
    Sketcher.Constraint("Diameter", 0, Q("0.375 in")),
    Sketcher.Constraint("Diameter", 1, Q("0.266 in")),
    Sketcher.Constraint("DistanceX", 2, 3, -1, 1, Q("11 in")),
    Sketcher.Constraint("DistanceY", 10, 3, -1, 1, Q("11 in")),
    Sketcher.Constraint("DistanceX", 0, 3, -1, 1, Q("5.5 in")),
    Sketcher.Constraint("DistanceY", 8, 3, -1, 1, Q("5.5 in")),
    Sketcher.Constraint("DistanceY", 4, 3, -1, 1, Q("3.7083 in")),
    Sketcher.Constraint("DistanceX", 6, 3, -1, 1, Q("7.5994 in")),
    Sketcher.Constraint("DistanceX", 4, 3, -1, 1, Q("103.1708 mm")),
    Sketcher.Constraint("DistanceY", 6, 3, -1, 1, Q("202.0047 mm")),
])
pocket11 = body.newObject("PartDesign::Pocket", "Pocket010")
pocket11.Profile = sketch18
pocket11.Length = Q("0.125 in")
pocket11.Reversed = True

doc.recompute()
